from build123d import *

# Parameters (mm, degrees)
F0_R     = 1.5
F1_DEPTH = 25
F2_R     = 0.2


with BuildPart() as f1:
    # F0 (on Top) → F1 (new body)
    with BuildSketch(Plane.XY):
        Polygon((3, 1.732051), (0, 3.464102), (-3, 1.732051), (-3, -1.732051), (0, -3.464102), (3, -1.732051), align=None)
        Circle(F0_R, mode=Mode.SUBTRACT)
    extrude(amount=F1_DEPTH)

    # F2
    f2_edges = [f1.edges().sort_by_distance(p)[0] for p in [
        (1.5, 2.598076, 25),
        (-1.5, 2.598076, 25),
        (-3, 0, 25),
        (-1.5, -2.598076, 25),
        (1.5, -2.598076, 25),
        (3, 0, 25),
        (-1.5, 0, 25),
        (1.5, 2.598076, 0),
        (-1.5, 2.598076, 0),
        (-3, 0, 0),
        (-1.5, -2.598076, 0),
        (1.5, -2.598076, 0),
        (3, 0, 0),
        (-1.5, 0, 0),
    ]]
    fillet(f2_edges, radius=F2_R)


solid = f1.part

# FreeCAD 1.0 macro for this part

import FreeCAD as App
import Part
import Sketcher
from FreeCAD import Vector
Q = App.Units.Quantity


def edges_at(feature, points):
    """Names of the edges that pass closest to the given points."""
    edges = feature.Shape.Edges
    near = lambda p: min(range(len(edges)), key=lambda i: edges[i].distToShape(Part.Vertex(*p))[0])
    return sorted({f"Edge{near(p) + 1}" for p in points})


def add_polygon(sketch, points):
    """Adds a closed chain of lines whose ends are joined by coincident constraints."""
    first, n = sketch.GeometryCount, len(points)
    for a, b in zip(points, points[1:] + points[:1]):
        sketch.addGeometry(Part.LineSegment(App.Vector(*a, 0), App.Vector(*b, 0)), False)
    for i in range(n):
        sketch.addConstraint(Sketcher.Constraint("Coincident", first + i, 2, first + (i + 1) % n, 1))

doc = App.newDocument("Part")
body = doc.addObject("PartDesign::Body", "Body")

# Sketch on XY plane
sketch1 = body.newObject("Sketcher::SketchObject", "Sketch")
sketch1.AttachmentSupport = (doc.getObject("XY_Plane"), [""])
sketch1.MapMode = "FlatFace"
add_polygon(sketch1, [(3, 1.7), (0, 3.5), (-3, 1.7), (-3, -1.7), (0, -3.5), (3, -1.7)])  # lines 0-5
sketch1.addGeometry(Part.Circle(Vector(0, 0, 0), Vector(0, 0, 1), 1.5), False)  # 6
sketch1.addConstraint([
    Sketcher.Constraint("Vertical", 2),
    Sketcher.Constraint("Vertical", 5),
    Sketcher.Constraint("Coincident", 6, 3, -1, 1),
    Sketcher.Constraint("Symmetric", 0, 2, 3, 2, -1, 1),
    Sketcher.Constraint("Symmetric", 1, 2, 4, 2, -1, 1),
    Sketcher.Constraint("PointOnObject", 0, 2, -2),
    Sketcher.Constraint("Parallel", 0, 3),
    Sketcher.Constraint("Horizontal", 2, 2, 4, 2),
    Sketcher.Constraint("Diameter", 6, Q("3 mm")),
    Sketcher.Constraint("Angle", 0, Q("149.999997 deg")),
    Sketcher.Constraint("DistanceX", 1, 2, -1, 1, Q("3 mm")),
    Sketcher.Constraint("DistanceY", 2, 2, 2, 1, Q("3.464102 mm")),
])
pad1 = body.newObject("PartDesign::Pad", "Pad")
pad1.Profile = sketch1
pad1.Length = 25
doc.recompute()

fillet = body.newObject("PartDesign::Fillet", "Fillet")
fillet.Base = (pad1, edges_at(pad1, [
    (1.5, 2.598, 25),
    (-1.5, 2.598, 25),
    (-3, 0, 25),
    (-1.5, -2.598, 25),
    (1.5, -2.598, 25),
    (3, 0, 25),
    (-1.5, 0, 25),
    (1.5, 2.598, 0),
    (-1.5, 2.598, 0),
    (-3, 0, 0),
    (-1.5, -2.598, 0),
    (1.5, -2.598, 0),
    (3, 0, 0),
    (-1.5, 0, 0),
]))
fillet.Radius = 0.2

doc.recompute()
